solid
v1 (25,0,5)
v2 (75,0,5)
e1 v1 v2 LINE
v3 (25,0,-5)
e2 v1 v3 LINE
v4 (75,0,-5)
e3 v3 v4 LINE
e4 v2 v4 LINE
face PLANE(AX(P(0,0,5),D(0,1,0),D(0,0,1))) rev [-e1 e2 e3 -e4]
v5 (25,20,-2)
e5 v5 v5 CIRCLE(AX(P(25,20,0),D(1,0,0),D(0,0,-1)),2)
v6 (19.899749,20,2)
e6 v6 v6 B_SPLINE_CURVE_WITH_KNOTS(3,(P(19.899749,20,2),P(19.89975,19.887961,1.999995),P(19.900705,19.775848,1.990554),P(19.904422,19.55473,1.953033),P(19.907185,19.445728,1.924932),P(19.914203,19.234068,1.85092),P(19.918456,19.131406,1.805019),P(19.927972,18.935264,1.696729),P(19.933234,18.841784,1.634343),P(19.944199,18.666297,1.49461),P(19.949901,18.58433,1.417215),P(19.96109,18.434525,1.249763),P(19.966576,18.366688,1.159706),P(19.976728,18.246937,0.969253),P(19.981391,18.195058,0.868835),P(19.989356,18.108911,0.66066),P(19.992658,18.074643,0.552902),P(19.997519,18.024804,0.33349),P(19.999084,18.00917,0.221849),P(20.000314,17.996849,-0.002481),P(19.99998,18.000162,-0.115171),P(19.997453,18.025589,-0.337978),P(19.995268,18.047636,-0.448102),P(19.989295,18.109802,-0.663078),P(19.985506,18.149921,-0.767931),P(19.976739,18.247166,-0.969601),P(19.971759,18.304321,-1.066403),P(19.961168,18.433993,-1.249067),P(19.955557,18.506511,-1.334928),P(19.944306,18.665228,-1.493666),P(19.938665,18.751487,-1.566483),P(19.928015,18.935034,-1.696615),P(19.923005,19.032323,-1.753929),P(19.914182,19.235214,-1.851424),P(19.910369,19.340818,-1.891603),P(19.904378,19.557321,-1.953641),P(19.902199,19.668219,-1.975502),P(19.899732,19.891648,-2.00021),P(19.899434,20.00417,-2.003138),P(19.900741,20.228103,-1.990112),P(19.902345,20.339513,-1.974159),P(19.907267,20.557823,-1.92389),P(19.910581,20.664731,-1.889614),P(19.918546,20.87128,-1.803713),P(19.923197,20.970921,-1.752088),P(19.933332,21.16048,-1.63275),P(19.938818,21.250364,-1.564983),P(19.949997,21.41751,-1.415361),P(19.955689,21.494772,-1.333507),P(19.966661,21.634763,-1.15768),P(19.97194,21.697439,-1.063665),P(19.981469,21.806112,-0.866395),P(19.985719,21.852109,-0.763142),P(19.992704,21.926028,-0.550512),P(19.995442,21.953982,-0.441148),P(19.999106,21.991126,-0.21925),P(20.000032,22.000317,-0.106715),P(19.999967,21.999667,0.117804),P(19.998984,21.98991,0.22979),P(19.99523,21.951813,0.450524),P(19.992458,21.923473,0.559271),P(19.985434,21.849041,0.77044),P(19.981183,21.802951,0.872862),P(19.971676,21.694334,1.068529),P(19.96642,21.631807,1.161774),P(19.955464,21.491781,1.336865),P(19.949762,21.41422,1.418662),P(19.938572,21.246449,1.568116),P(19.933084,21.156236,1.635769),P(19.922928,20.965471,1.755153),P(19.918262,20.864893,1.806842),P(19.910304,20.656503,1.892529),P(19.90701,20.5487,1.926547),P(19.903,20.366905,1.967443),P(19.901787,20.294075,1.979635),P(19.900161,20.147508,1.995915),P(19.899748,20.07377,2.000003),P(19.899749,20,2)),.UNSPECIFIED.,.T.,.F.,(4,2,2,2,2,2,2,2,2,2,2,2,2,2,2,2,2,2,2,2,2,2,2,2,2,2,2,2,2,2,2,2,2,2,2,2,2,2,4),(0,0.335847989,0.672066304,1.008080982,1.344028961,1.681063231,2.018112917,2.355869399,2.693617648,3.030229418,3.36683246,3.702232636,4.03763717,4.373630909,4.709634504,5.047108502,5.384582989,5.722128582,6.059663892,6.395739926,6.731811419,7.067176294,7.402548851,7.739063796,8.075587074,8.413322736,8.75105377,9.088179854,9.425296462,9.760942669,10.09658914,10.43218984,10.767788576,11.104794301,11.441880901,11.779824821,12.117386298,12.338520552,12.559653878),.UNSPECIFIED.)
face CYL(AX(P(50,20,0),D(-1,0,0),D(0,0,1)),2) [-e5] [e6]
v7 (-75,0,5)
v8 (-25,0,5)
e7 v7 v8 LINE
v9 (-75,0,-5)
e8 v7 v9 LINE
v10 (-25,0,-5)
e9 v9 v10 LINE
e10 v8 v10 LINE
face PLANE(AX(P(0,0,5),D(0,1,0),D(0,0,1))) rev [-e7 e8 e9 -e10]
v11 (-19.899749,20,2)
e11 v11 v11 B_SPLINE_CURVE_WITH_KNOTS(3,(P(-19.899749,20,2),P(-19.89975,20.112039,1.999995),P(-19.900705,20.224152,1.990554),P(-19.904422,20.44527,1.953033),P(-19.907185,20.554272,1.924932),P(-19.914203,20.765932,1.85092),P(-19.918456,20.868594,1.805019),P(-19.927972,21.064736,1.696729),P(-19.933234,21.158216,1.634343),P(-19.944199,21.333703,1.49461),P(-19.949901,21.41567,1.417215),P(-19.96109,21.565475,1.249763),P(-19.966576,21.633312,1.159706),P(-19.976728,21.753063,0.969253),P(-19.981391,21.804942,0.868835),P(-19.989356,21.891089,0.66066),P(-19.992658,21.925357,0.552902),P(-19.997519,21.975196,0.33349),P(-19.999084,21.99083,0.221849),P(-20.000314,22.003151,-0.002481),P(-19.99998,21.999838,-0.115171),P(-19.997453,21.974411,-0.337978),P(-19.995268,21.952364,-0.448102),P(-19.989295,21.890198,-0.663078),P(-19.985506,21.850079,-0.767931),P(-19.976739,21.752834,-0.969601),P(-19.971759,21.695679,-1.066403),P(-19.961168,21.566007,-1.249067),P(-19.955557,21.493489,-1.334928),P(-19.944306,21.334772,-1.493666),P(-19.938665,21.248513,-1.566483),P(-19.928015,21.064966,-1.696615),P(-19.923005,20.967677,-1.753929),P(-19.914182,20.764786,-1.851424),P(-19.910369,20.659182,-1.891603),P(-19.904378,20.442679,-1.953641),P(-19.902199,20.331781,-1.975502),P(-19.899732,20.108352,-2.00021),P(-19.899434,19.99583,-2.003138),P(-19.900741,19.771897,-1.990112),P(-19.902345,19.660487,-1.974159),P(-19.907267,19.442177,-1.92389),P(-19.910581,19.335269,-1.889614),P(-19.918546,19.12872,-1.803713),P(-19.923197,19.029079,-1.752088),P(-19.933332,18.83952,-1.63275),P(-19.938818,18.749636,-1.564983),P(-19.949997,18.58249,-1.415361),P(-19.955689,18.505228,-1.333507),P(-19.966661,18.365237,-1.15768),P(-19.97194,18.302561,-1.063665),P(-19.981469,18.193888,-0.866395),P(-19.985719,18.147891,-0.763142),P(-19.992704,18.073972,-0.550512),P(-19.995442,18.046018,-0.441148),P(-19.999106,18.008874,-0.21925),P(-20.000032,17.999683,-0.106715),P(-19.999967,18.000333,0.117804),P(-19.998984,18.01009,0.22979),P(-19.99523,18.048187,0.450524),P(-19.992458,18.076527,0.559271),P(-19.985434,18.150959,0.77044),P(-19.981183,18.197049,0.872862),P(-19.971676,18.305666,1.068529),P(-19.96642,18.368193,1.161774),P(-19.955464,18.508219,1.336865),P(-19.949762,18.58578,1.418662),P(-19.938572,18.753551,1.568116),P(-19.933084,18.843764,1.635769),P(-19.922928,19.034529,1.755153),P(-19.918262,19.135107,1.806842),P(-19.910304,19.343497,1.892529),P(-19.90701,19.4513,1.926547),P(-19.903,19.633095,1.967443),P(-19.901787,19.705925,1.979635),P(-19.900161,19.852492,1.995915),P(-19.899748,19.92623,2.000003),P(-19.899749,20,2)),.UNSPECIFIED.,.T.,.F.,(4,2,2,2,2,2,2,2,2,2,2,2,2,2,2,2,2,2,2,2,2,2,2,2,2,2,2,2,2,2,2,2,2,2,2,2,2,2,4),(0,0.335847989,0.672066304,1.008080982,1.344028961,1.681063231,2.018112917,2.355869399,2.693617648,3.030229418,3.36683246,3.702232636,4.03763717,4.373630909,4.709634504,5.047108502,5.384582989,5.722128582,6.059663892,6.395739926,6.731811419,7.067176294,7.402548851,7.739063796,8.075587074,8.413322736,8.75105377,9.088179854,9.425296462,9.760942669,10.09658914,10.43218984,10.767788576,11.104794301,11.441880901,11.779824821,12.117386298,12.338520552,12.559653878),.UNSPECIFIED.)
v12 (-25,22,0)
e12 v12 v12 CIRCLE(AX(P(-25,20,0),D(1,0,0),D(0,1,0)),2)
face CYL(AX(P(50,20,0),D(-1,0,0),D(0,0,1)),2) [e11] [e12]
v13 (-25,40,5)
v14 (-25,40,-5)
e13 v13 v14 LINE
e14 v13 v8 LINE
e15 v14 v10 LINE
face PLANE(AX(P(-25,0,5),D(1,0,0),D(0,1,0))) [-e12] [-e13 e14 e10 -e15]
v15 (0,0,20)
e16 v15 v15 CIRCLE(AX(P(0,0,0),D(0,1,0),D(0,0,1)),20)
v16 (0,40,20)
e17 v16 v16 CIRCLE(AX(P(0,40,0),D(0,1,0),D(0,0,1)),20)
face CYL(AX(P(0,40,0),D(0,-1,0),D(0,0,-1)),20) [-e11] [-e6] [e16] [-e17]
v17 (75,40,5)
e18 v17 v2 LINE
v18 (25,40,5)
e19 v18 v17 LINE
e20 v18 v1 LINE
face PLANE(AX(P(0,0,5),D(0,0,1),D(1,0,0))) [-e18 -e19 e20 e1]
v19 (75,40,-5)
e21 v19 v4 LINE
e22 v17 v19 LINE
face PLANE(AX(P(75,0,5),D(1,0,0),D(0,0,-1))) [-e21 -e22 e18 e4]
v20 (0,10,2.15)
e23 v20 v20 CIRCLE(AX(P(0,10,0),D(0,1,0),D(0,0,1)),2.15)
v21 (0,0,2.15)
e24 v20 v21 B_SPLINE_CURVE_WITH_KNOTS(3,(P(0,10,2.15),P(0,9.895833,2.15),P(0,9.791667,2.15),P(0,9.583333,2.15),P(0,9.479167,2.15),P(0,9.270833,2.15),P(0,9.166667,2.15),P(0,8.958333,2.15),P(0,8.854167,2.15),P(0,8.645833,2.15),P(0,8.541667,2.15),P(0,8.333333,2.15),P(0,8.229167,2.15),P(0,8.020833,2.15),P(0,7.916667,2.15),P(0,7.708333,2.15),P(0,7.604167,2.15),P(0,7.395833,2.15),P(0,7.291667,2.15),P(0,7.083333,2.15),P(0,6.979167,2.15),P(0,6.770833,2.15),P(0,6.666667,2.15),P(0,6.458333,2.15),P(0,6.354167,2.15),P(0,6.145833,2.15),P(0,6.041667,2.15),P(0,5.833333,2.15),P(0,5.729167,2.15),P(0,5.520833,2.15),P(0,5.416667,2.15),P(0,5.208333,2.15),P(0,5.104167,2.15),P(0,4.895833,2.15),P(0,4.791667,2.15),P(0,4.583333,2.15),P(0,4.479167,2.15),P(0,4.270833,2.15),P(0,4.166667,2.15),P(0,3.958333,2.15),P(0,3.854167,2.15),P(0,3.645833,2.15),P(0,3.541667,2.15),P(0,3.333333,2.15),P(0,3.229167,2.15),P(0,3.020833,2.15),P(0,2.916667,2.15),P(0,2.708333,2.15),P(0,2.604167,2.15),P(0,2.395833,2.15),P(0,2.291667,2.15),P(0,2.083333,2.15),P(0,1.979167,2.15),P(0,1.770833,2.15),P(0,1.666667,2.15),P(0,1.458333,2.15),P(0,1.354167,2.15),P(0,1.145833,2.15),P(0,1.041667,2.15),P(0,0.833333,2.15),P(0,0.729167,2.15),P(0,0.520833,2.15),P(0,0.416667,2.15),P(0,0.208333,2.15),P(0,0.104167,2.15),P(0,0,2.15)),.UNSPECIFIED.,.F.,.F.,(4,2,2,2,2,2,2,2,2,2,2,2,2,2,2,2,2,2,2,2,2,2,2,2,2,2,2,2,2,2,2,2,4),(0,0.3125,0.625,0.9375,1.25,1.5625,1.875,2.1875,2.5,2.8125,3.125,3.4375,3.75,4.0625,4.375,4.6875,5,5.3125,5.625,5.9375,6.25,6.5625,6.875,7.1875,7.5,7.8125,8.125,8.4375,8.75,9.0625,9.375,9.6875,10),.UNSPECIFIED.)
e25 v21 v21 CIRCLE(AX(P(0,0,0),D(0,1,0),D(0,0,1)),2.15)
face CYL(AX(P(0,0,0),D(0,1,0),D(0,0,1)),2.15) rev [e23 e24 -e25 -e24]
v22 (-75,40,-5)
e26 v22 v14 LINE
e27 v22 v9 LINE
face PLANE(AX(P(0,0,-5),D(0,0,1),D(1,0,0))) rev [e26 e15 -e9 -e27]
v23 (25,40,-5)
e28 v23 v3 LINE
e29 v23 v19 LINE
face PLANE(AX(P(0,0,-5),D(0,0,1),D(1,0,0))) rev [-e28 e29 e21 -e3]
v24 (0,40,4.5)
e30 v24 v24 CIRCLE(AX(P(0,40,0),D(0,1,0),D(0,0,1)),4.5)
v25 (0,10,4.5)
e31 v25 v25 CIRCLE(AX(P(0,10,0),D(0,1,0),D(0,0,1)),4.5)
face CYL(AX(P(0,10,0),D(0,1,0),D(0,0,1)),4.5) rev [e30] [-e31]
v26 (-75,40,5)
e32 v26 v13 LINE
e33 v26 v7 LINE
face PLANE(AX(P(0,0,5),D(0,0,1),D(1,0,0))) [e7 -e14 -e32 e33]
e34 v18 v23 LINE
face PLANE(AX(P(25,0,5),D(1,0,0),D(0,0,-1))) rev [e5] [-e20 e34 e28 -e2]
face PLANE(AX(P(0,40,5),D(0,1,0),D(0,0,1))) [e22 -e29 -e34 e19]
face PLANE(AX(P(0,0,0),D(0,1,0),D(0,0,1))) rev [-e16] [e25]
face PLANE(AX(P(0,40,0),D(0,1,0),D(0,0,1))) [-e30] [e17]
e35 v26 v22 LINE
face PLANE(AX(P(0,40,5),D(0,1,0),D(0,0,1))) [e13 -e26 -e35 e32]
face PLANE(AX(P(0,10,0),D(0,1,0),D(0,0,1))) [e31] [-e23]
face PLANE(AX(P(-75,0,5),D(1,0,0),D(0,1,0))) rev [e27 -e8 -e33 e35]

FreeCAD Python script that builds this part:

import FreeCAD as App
import Part
import Sketcher
Q = App.Units.Quantity


def add_polygon(sketch, points):
    """Adds a closed chain of lines whose ends are joined by coincident constraints."""
    first, n = sketch.GeometryCount, len(points)
    for a, b in zip(points, points[1:] + points[:1]):
        sketch.addGeometry(Part.LineSegment(App.Vector(*a, 0), App.Vector(*b, 0)), False)
    for i in range(n):
        sketch.addConstraint(Sketcher.Constraint("Coincident", first + i, 2, first + (i + 1) % n, 1))

doc = App.newDocument("Part")
params = doc.addObject("Spreadsheet::Sheet", "Params")
for row, (alias, value) in enumerate([
    ("sketch1_diameter", "40 mm"),
    ("pad1_length", "40 mm"),
    ("sketch2_width", "50 mm"),
    ("sketch2_height", "40 mm"),
    ("pad2_length", "10 mm"),
    ("sketch3_width", "50 mm"),
    ("sketch3_height", "40 mm"),
    ("pad3_length", "10 mm"),
    ("sketch4_diameter", "4 mm"),
    ("pad4_length", "100 mm"),
    ("sketch5_diameter", "9 mm"),
    ("pocket1_length", "30 mm"),
    ("sketch6_diameter", "4.3 mm"),
], start=1):
    params.set(f"A{row}", alias)
    params.set(f"B{row}", "=" + value)
    params.setAlias(f"B{row}", alias)

body = doc.addObject("PartDesign::Body", "Body")

# Sketch on XZ plane
sketch1 = body.newObject("Sketcher::SketchObject", "Sketch")
sketch1.AttachmentSupport = (doc.getObject("XZ_Plane"), [""])
sketch1.MapMode = "FlatFace"
sketch1.addGeometry(Part.Circle(App.Vector(0, 0, 0), App.Vector(0, 0, 1), 20), False)
sketch1.addConstraint([
    Sketcher.Constraint("Coincident", 0, 3, -1, 1),
    Sketcher.Constraint("Diameter", 0, Q("40 mm")),
])
sketch1.setExpression("Constraints[1]", "Params.sketch1_diameter")
pad1 = body.newObject("PartDesign::Pad", "Pad")
pad1.Profile = sketch1
pad1.setExpression("Length", "Params.pad1_length")
pad1.Reversed = True
body2 = doc.addObject("PartDesign::Body", "Body001")

# Sketch on XY plane
sketch2 = body2.newObject("Sketcher::SketchObject", "Sketch001")
sketch2.AttachmentSupport = (doc.getObject("XY_Plane001"), [""])
sketch2.MapMode = "FlatFace"
add_polygon(sketch2, [(25, 40), (25, 0), (75, 0), (75, 40)])  # lines 0-3
sketch2.addConstraint([
    Sketcher.Constraint("Vertical", 0),
    Sketcher.Constraint("Horizontal", 1),
    Sketcher.Constraint("Vertical", 2),
    Sketcher.Constraint("Horizontal", 3),
    Sketcher.Constraint("PointOnObject", 0, 2, -1),
    Sketcher.Constraint("DistanceX", 1, 1, 1, 2, Q("50 mm")),
    Sketcher.Constraint("DistanceY", 0, 2, 0, 1, Q("40 mm")),
    Sketcher.Constraint("DistanceX", -1, 1, 0, 2, Q("25 mm")),
])
sketch2.setExpression("Constraints[9]", "Params.sketch2_width")
sketch2.setExpression("Constraints[10]", "Params.sketch2_height")
pad2 = body2.newObject("PartDesign::Pad", "Pad001")
pad2.Profile = sketch2
pad2.setExpression("Length", "Params.pad2_length")
pad2.Midplane = True
body3 = doc.addObject("PartDesign::Body", "Body002")

# Sketch on XY plane
sketch3 = body3.newObject("Sketcher::SketchObject", "Sketch002")
sketch3.AttachmentSupport = (doc.getObject("XY_Plane002"), [""])
sketch3.MapMode = "FlatFace"
add_polygon(sketch3, [(-75, 40), (-75, 0), (-25, 0), (-25, 40)])  # lines 0-3
sketch3.addConstraint([
    Sketcher.Constraint("Vertical", 0),
    Sketcher.Constraint("Horizontal", 1),
    Sketcher.Constraint("Vertical", 2),
    Sketcher.Constraint("Horizontal", 3),
    Sketcher.Constraint("PointOnObject", 0, 2, -1),
    Sketcher.Constraint("DistanceX", 1, 1, 1, 2, Q("50 mm")),
    Sketcher.Constraint("DistanceY", 0, 2, 0, 1, Q("40 mm")),
    Sketcher.Constraint("DistanceX", 0, 2, -1, 1, Q("75 mm")),
])
sketch3.setExpression("Constraints[9]", "Params.sketch3_width")
sketch3.setExpression("Constraints[10]", "Params.sketch3_height")
pad3 = body3.newObject("PartDesign::Pad", "Pad002")
pad3.Profile = sketch3
pad3.setExpression("Length", "Params.pad3_length")
pad3.Midplane = True
body.AllowCompound = True
doc.recompute()

boolean = body.newObject("PartDesign::Boolean", "Boolean")
boolean.Type = "Fuse"
boolean.addObjects([body2])
doc.recompute()

boolean2 = body.newObject("PartDesign::Boolean", "Boolean001")
boolean2.Type = "Fuse"
boolean2.addObjects([body3])

# Sketch on YZ plane
sketch4 = body.newObject("Sketcher::SketchObject", "Sketch003")
sketch4.AttachmentSupport = (doc.getObject("YZ_Plane"), [""])
sketch4.MapMode = "FlatFace"
sketch4.addGeometry(Part.Circle(App.Vector(20, 0, 0), App.Vector(0, 0, 1), 2), False)
sketch4.addConstraint([
    Sketcher.Constraint("PointOnObject", 0, 3, -1),
    Sketcher.Constraint("Diameter", 0, Q("4 mm")),
    Sketcher.Constraint("DistanceX", -1, 1, 0, 3, Q("20 mm")),
])
sketch4.setExpression("Constraints[1]", "Params.sketch4_diameter")
pad4 = body.newObject("PartDesign::Pad", "Pad003")
pad4.Profile = sketch4
pad4.setExpression("Length", "Params.pad4_length")
pad4.Midplane = True

# Sketch on XZ plane
sketch5 = body.newObject("Sketcher::SketchObject", "Sketch004")
sketch5.AttachmentSupport = (doc.getObject("XZ_Plane"), [""])
sketch5.MapMode = "FlatFace"
sketch5.AttachmentOffset = App.Placement(App.Vector(0, 0, -40), App.Rotation())
sketch5.addGeometry(Part.Circle(App.Vector(0, 0, 0), App.Vector(0, 0, 1), 4.5), False)
sketch5.addConstraint([
    Sketcher.Constraint("Coincident", 0, 3, -1, 1),
    Sketcher.Constraint("Diameter", 0, Q("9 mm")),
])
sketch5.setExpression("Constraints[1]", "Params.sketch5_diameter")
pocket1 = body.newObject("PartDesign::Pocket", "Pocket")
pocket1.Profile = sketch5
pocket1.setExpression("Length", "Params.pocket1_length")
pocket1.Reversed = True

# Sketch on XZ plane
sketch6 = body.newObject("Sketcher::SketchObject", "Sketch005")
sketch6.AttachmentSupport = (doc.getObject("XZ_Plane"), [""])
sketch6.MapMode = "FlatFace"
sketch6.AttachmentOffset = App.Placement(App.Vector(0, 0, -40), App.Rotation())
sketch6.addGeometry(Part.Circle(App.Vector(0, 0, 0), App.Vector(0, 0, 1), 2.15), False)
sketch6.addConstraint([
    Sketcher.Constraint("Coincident", 0, 3, -1, 1),
    Sketcher.Constraint("Diameter", 0, Q("4.3 mm")),
])
sketch6.setExpression("Constraints[1]", "Params.sketch6_diameter")
pocket2 = body.newObject("PartDesign::Pocket", "Pocket001")
pocket2.Profile = sketch6
pocket2.Type = "ThroughAll"
pocket2.Reversed = True

doc.recompute()
